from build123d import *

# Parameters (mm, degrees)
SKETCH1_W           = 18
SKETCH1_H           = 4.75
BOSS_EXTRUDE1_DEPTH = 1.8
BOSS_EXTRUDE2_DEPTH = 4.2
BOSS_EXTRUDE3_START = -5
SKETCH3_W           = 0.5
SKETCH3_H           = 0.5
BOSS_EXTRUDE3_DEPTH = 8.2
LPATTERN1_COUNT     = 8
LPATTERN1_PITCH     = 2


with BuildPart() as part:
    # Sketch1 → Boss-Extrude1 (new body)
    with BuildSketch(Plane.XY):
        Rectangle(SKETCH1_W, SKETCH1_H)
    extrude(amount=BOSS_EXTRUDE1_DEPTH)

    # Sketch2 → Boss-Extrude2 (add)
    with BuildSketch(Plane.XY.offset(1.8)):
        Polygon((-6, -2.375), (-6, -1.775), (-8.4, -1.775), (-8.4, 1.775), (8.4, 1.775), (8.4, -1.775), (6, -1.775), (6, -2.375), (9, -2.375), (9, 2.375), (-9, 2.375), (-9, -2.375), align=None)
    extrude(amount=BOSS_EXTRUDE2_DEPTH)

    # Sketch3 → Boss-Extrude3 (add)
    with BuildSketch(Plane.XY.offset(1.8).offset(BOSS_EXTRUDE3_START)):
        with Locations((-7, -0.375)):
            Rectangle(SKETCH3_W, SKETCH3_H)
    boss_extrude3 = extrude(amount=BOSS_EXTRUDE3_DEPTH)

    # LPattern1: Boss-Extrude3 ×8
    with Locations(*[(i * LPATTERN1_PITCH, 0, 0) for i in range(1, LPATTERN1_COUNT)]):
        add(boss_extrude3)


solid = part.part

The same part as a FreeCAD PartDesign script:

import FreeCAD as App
import Part
import Sketcher
from FreeCAD import Vector

doc = App.newDocument("Part")
body = doc.addObject("PartDesign::Body", "Body")

# Sketch on XY plane
sketch1 = body.newObject("Sketcher::SketchObject", "Sketch")
sketch1.AttachmentSupport = (doc.getObject("XY_Plane"), [""])
sketch1.MapMode = "FlatFace"
sketch1.addGeometry(Part.LineSegment(Vector(-9, 2.4, 0), Vector(-9, -2.4, 0)), False)
sketch1.addGeometry(Part.LineSegment(Vector(-9, -2.4, 0), Vector(9, -2.4, 0)), False)
sketch1.addGeometry(Part.LineSegment(Vector(9, -2.4, 0), Vector(9, 2.4, 0)), False)
sketch1.addGeometry(Part.LineSegment(Vector(9, 2.4, 0), Vector(-9, 2.4, 0)), False)
sketch1.addConstraint(Sketcher.Constraint("Coincident", 0, 2, 1, 1))
sketch1.addConstraint(Sketcher.Constraint("Coincident", 1, 2, 2, 1))
sketch1.addConstraint(Sketcher.Constraint("Coincident", 2, 2, 3, 1))
sketch1.addConstraint(Sketcher.Constraint("Coincident", 3, 2, 0, 1))
sketch1.addConstraint(Sketcher.Constraint("Vertical", 0))
sketch1.addConstraint(Sketcher.Constraint("Horizontal", 1))
sketch1.addConstraint(Sketcher.Constraint("Vertical", 2))
sketch1.addConstraint(Sketcher.Constraint("Horizontal", 3))
sketch1.addConstraint(Sketcher.Constraint("Symmetric", 0, 2, 2, 2, -1, 1))
sketch1.addConstraint(Sketcher.Constraint("DistanceX", 1, 1, 1, 2, 18.0))
sketch1.addConstraint(Sketcher.Constraint("DistanceY", 0, 2, 0, 1, 4.75))
pad1 = body.newObject("PartDesign::Pad", "Pad")
pad1.Profile = sketch1
pad1.Length = 1.8

# Sketch on XY plane
sketch2 = body.newObject("Sketcher::SketchObject", "Sketch001")
sketch2.AttachmentSupport = (doc.getObject("XY_Plane"), [""])
sketch2.MapMode = "FlatFace"
sketch2.AttachmentOffset = App.Placement(Vector(0, 0, 1.8), App.Rotation())
sketch2.addGeometry(Part.LineSegment(Vector(-6, -2.4, 0), Vector(-6, -1.8, 0)), False)
sketch2.addGeometry(Part.LineSegment(Vector(-6, -1.8, 0), Vector(-8.4, -1.8, 0)), False)
sketch2.addGeometry(Part.LineSegment(Vector(-8.4, -1.8, 0), Vector(-8.4, 1.8, 0)), False)
sketch2.addGeometry(Part.LineSegment(Vector(-8.4, 1.8, 0), Vector(8.4, 1.8, 0)), False)
sketch2.addGeometry(Part.LineSegment(Vector(8.4, 1.8, 0), Vector(8.4, -1.8, 0)), False)
sketch2.addGeometry(Part.LineSegment(Vector(8.4, -1.8, 0), Vector(6, -1.8, 0)), False)
sketch2.addGeometry(Part.LineSegment(Vector(6, -1.8, 0), Vector(6, -2.4, 0)), False)
sketch2.addGeometry(Part.LineSegment(Vector(6, -2.4, 0), Vector(9, -2.4, 0)), False)
sketch2.addGeometry(Part.LineSegment(Vector(9, -2.4, 0), Vector(9, 2.4, 0)), False)
sketch2.addGeometry(Part.LineSegment(Vector(9, 2.4, 0), Vector(-9, 2.4, 0)), False)
sketch2.addGeometry(Part.LineSegment(Vector(-9, 2.4, 0), Vector(-9, -2.4, 0)), False)
sketch2.addGeometry(Part.LineSegment(Vector(-9, -2.4, 0), Vector(-6, -2.4, 0)), False)
sketch2.addConstraint(Sketcher.Constraint("Coincident", 0, 2, 1, 1))
sketch2.addConstraint(Sketcher.Constraint("Coincident", 1, 2, 2, 1))
sketch2.addConstraint(Sketcher.Constraint("Coincident", 2, 2, 3, 1))
sketch2.addConstraint(Sketcher.Constraint("Coincident", 3, 2, 4, 1))
sketch2.addConstraint(Sketcher.Constraint("Coincident", 4, 2, 5, 1))
sketch2.addConstraint(Sketcher.Constraint("Coincident", 5, 2, 6, 1))
sketch2.addConstraint(Sketcher.Constraint("Coincident", 6, 2, 7, 1))
sketch2.addConstraint(Sketcher.Constraint("Coincident", 7, 2, 8, 1))
sketch2.addConstraint(Sketcher.Constraint("Coincident", 8, 2, 9, 1))
sketch2.addConstraint(Sketcher.Constraint("Coincident", 9, 2, 10, 1))
sketch2.addConstraint(Sketcher.Constraint("Coincident", 10, 2, 11, 1))
sketch2.addConstraint(Sketcher.Constraint("Coincident", 11, 2, 0, 1))
sketch2.addConstraint(Sketcher.Constraint("Vertical", 0))
sketch2.addConstraint(Sketcher.Constraint("Horizontal", 1))
sketch2.addConstraint(Sketcher.Constraint("Vertical", 2))
sketch2.addConstraint(Sketcher.Constraint("Horizontal", 3))
sketch2.addConstraint(Sketcher.Constraint("Vertical", 4))
sketch2.addConstraint(Sketcher.Constraint("Horizontal", 5))
sketch2.addConstraint(Sketcher.Constraint("Vertical", 6))
sketch2.addConstraint(Sketcher.Constraint("Horizontal", 7))
sketch2.addConstraint(Sketcher.Constraint("Vertical", 8))
sketch2.addConstraint(Sketcher.Constraint("Horizontal", 9))
sketch2.addConstraint(Sketcher.Constraint("Vertical", 10))
sketch2.addConstraint(Sketcher.Constraint("Horizontal", 11))
sketch2.addConstraint(Sketcher.Constraint("Symmetric", 1, 2, 3, 2, -1, 1))
sketch2.addConstraint(Sketcher.Constraint("Symmetric", 7, 2, 9, 2, -1, 1))
sketch2.addConstraint(Sketcher.Constraint("Symmetric", 0, 2, 5, 2, -2))
sketch2.addConstraint(Sketcher.Constraint("Horizontal", 7, 2, 10, 2))
sketch2.addConstraint(Sketcher.Constraint("DistanceX", 7, 1, 7, 2, 3.0))
sketch2.addConstraint(Sketcher.Constraint("DistanceX", 9, 2, 9, 1, 18.0))
sketch2.addConstraint(Sketcher.Constraint("DistanceX", 1, 2, 1, 1, 2.4))
sketch2.addConstraint(Sketcher.Constraint("DistanceY", 0, 1, 0, 2, 0.6))
sketch2.addConstraint(Sketcher.Constraint("DistanceY", 2, 1, 2, 2, 3.55))
pad2 = body.newObject("PartDesign::Pad", "Pad001")
pad2.Profile = sketch2
pad2.Length = 4.2

# Sketch on XY plane
sketch3 = body.newObject("Sketcher::SketchObject", "Sketch002")
sketch3.AttachmentSupport = (doc.getObject("XY_Plane"), [""])
sketch3.MapMode = "FlatFace"
sketch3.AttachmentOffset = App.Placement(Vector(0, 0, -3.2), App.Rotation())
sketch3.addGeometry(Part.LineSegment(Vector(-7.2, -0.1, 0), Vector(-7.2, -0.6, 0)), False)
sketch3.addGeometry(Part.LineSegment(Vector(-7.2, -0.6, 0), Vector(-6.8, -0.6, 0)), False)
sketch3.addGeometry(Part.LineSegment(Vector(-6.8, -0.6, 0), Vector(-6.8, -0.1, 0)), False)
sketch3.addGeometry(Part.LineSegment(Vector(-6.8, -0.1, 0), Vector(-7.2, -0.1, 0)), False)
sketch3.addConstraint(Sketcher.Constraint("Coincident", 0, 2, 1, 1))
sketch3.addConstraint(Sketcher.Constraint("Coincident", 1, 2, 2, 1))
sketch3.addConstraint(Sketcher.Constraint("Coincident", 2, 2, 3, 1))
sketch3.addConstraint(Sketcher.Constraint("Coincident", 3, 2, 0, 1))
sketch3.addConstraint(Sketcher.Constraint("Vertical", 0))
sketch3.addConstraint(Sketcher.Constraint("Horizontal", 1))
sketch3.addConstraint(Sketcher.Constraint("Vertical", 2))
sketch3.addConstraint(Sketcher.Constraint("Horizontal", 3))
sketch3.addConstraint(Sketcher.Constraint("Equal", 3, 0))
sketch3.addConstraint(Sketcher.Constraint("DistanceX", 1, 1, 1, 2, 0.5))
sketch3.addConstraint(Sketcher.Constraint("DistanceX", 0, 2, -1, 1, 7.25))
sketch3.addConstraint(Sketcher.Constraint("DistanceY", 0, 2, -1, 1, 0.625))
pad3 = body.newObject("PartDesign::Pad", "Pad002")
pad3.Profile = sketch3
pad3.Length = 8.2
doc.recompute()

linearpattern = body.newObject("PartDesign::LinearPattern", "LinearPattern")
linearpattern.Originals = [pad3]
linearpattern.Direction = (doc.getObject("X_Axis"), [""])
linearpattern.Mode = "offset"
linearpattern.Offset = 2
linearpattern.Occurrences = 8
body.Tip = linearpattern

doc.recompute()
